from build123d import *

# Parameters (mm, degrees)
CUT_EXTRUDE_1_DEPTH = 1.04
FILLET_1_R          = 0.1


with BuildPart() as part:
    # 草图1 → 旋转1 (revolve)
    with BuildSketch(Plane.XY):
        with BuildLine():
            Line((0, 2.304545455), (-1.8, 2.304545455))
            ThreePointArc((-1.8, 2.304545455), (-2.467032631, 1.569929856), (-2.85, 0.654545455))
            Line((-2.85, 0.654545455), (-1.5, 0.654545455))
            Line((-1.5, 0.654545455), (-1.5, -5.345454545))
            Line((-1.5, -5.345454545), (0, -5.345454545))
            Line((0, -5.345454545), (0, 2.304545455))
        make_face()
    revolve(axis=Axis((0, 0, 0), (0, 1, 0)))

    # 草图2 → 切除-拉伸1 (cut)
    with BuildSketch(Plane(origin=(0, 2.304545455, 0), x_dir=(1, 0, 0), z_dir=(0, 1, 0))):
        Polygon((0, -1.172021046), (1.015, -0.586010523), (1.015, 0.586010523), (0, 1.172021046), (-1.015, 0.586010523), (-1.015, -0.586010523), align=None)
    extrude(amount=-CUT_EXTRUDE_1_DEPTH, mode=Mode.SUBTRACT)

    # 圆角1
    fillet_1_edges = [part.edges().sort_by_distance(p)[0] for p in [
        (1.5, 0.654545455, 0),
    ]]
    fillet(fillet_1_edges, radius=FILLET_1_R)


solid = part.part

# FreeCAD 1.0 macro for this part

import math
import FreeCAD as App
import Part
import Sketcher
Q = App.Units.Quantity


def edges_at(feature, points):
    """Names of the edges that pass closest to the given points."""
    edges = feature.Shape.Edges
    near = lambda p: min(range(len(edges)), key=lambda i: edges[i].distToShape(Part.Vertex(*p))[0])
    return sorted({f"Edge{near(p) + 1}" for p in points})

doc = App.newDocument("Part")
body = doc.addObject("PartDesign::Body", "Body")

sketch1 = body.newObject("Sketcher::SketchObject", "Sketch")
sketch1.AttachmentSupport = (doc.getObject("XY_Plane"), [""])
sketch1.MapMode = "FlatFace"
sketch1.addGeometry(Part.LineSegment(App.Vector(0, 2.3, 0), App.Vector(-1.8, 2.3, 0)), False)
sketch1.addGeometry(Part.ArcOfCircle(Part.Circle(App.Vector(0, 0, 0), App.Vector(0, 0, 1), 2.9), math.radians(128), math.radians(167)), False)
sketch1.addGeometry(Part.LineSegment(App.Vector(-2.9, 0.7, 0), App.Vector(-1.5, 0.7, 0)), False)
sketch1.addGeometry(Part.LineSegment(App.Vector(-1.5, 0.7, 0), App.Vector(-1.5, -5.3, 0)), False)
sketch1.addGeometry(Part.LineSegment(App.Vector(-1.5, -5.3, 0), App.Vector(0, -5.3, 0)), False)
sketch1.addGeometry(Part.LineSegment(App.Vector(0, -5.3, 0), App.Vector(0, 2.3, 0)), False)
sketch1.addConstraint(Sketcher.Constraint("Coincident", 0, 2, 1, 1))
sketch1.addConstraint(Sketcher.Constraint("Coincident", 1, 2, 2, 1))
sketch1.addConstraint(Sketcher.Constraint("Coincident", 2, 2, 3, 1))
sketch1.addConstraint(Sketcher.Constraint("Coincident", 3, 2, 4, 1))
sketch1.addConstraint(Sketcher.Constraint("Coincident", 4, 2, 5, 1))
sketch1.addConstraint(Sketcher.Constraint("Coincident", 5, 2, 0, 1))
sketch1.addConstraint(Sketcher.Constraint("Horizontal", 0))
sketch1.addConstraint(Sketcher.Constraint("Horizontal", 2))
sketch1.addConstraint(Sketcher.Constraint("Vertical", 3))
sketch1.addConstraint(Sketcher.Constraint("Horizontal", 4))
sketch1.addConstraint(Sketcher.Constraint("Vertical", 5))
sketch1.addConstraint(Sketcher.Constraint("Coincident", 1, 3, -1, 1))
sketch1.addConstraint(Sketcher.Constraint("PointOnObject", 4, 2, -2))
sketch1.addConstraint(Sketcher.Constraint("DistanceY", 3, 2, 3, 1, 6.0))
sketch1.addConstraint(Sketcher.Constraint("DistanceX", 0, 2, 0, 1, 1.8))
sketch1.addConstraint(Sketcher.Constraint("DistanceX", 4, 1, 4, 2, 1.5))
sketch1.addConstraint(Sketcher.Constraint("DistanceX", 2, 1, 2, 2, 1.35))
sketch1.addConstraint(Sketcher.Constraint("DistanceY", 5, 1, 5, 2, 7.65))
revolution = body.newObject("PartDesign::Revolution", "Revolution")
revolution.Profile = sketch1
revolution.ReferenceAxis = (sketch1, ["V_Axis"])
revolution.Angle = 360

sketch2 = body.newObject("Sketcher::SketchObject", "Sketch001")
sketch2.AttachmentSupport = (doc.getObject("XZ_Plane"), [""])
sketch2.MapMode = "FlatFace"
sketch2.AttachmentOffset = App.Placement(App.Vector(0, 0, -2.304545), App.Rotation())
sketch2.addGeometry(Part.LineSegment(App.Vector(0, 1.2, 0), App.Vector(1, 0.6, 0)), False)
sketch2.addGeometry(Part.LineSegment(App.Vector(1, 0.6, 0), App.Vector(1, -0.6, 0)), False)
sketch2.addGeometry(Part.LineSegment(App.Vector(1, -0.6, 0), App.Vector(0, -1.2, 0)), False)
sketch2.addGeometry(Part.LineSegment(App.Vector(0, -1.2, 0), App.Vector(-1, -0.6, 0)), False)
sketch2.addGeometry(Part.LineSegment(App.Vector(-1, -0.6, 0), App.Vector(-1, 0.6, 0)), False)
sketch2.addGeometry(Part.LineSegment(App.Vector(-1, 0.6, 0), App.Vector(0, 1.2, 0)), False)
sketch2.addConstraint(Sketcher.Constraint("Coincident", 0, 2, 1, 1))
sketch2.addConstraint(Sketcher.Constraint("Coincident", 1, 2, 2, 1))
sketch2.addConstraint(Sketcher.Constraint("Coincident", 2, 2, 3, 1))
sketch2.addConstraint(Sketcher.Constraint("Coincident", 3, 2, 4, 1))
sketch2.addConstraint(Sketcher.Constraint("Coincident", 4, 2, 5, 1))
sketch2.addConstraint(Sketcher.Constraint("Coincident", 5, 2, 0, 1))
sketch2.addConstraint(Sketcher.Constraint("Vertical", 1))
sketch2.addConstraint(Sketcher.Constraint("Vertical", 4))
sketch2.addConstraint(Sketcher.Constraint("Symmetric", 0, 2, 3, 2, -1, 1))
sketch2.addConstraint(Sketcher.Constraint("Symmetric", 2, 2, 5, 2, -1, 1))
sketch2.addConstraint(Sketcher.Constraint("PointOnObject", 2, 2, -2))
sketch2.addConstraint(Sketcher.Constraint("Parallel", 2, 5))
sketch2.addConstraint(Sketcher.Constraint("Horizontal", 1, 2, 3, 2))
sketch2.addConstraint(Sketcher.Constraint("Angle", 0, Q("-30 deg")))
sketch2.addConstraint(Sketcher.Constraint("DistanceX", 3, 2, 1, 2, 2.03))
sketch2.addConstraint(Sketcher.Constraint("DistanceY", 1, 2, 1, 1, 1.172021))
pocket1 = body.newObject("PartDesign::Pocket", "Pocket")
pocket1.Profile = sketch2
pocket1.Length = 1.04
pocket1.Reversed = True
doc.recompute()

fillet = body.newObject("PartDesign::Fillet", "Fillet")
fillet.Base = (pocket1, edges_at(pocket1, [(1.5, 0.655, 0)]))
fillet.Radius = 0.1

doc.recompute()
